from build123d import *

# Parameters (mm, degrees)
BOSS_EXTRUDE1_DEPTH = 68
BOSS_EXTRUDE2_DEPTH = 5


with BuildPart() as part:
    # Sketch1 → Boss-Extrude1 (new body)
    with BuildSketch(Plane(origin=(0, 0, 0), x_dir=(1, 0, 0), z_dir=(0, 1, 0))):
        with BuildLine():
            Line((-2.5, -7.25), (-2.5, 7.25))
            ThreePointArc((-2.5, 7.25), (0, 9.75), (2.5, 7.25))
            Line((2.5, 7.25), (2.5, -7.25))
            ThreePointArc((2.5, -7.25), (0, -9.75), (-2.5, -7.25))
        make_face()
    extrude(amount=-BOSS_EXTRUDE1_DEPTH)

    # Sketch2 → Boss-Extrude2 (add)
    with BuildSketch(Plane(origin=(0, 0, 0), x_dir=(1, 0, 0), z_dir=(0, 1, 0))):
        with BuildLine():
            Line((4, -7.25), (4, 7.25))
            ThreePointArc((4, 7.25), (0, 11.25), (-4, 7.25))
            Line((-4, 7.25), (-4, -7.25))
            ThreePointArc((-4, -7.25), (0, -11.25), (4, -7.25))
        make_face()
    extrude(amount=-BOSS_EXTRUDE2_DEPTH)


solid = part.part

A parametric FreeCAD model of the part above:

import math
import FreeCAD as App
import Part
import Sketcher
from FreeCAD import Vector
Q = App.Units.Quantity

doc = App.newDocument("Part")
body = doc.addObject("PartDesign::Body", "Body")

sketch1 = body.newObject("Sketcher::SketchObject", "Sketch")
sketch1.AttachmentSupport = (doc.getObject("XZ_Plane"), [""])
sketch1.MapMode = "FlatFace"
sketch1.addGeometry([
    Part.LineSegment(Vector(-2.5, -7.2, 0), Vector(-2.5, 7.2, 0)),
    Part.ArcOfCircle(Part.Circle(Vector(0, 7.2, 0), Vector(0, 0, 1), 2.5), math.radians(0), math.radians(180)),
    Part.LineSegment(Vector(2.5, 7.2, 0), Vector(2.5, -7.2, 0)),
    Part.ArcOfCircle(Part.Circle(Vector(0, -7.2, 0), Vector(0, 0, 1), 2.5), math.radians(180), math.radians(360)),
], False)
sketch1.addConstraint([
    Sketcher.Constraint("Tangent", 0, 2, 1, 2),
    Sketcher.Constraint("Tangent", 1, 1, 2, 1),
    Sketcher.Constraint("Tangent", 2, 2, 3, 2),
    Sketcher.Constraint("Tangent", 3, 1, 0, 1),
    Sketcher.Constraint("Vertical", 0),
    Sketcher.Constraint("Vertical", 2),
    Sketcher.Constraint("Symmetric", 1, 3, 3, 3, -1, 1),
    Sketcher.Constraint("Radius", 1, Q("2.5 mm")),
    Sketcher.Constraint("DistanceY", 0, 1, 0, 2, Q("14.5 mm")),
])
pad1 = body.newObject("PartDesign::Pad", "Pad")
pad1.Profile = sketch1
pad1.Length = 68

sketch2 = body.newObject("Sketcher::SketchObject", "Sketch001")
sketch2.AttachmentSupport = (doc.getObject("XZ_Plane"), [""])
sketch2.MapMode = "FlatFace"
sketch2.addGeometry([
    Part.LineSegment(Vector(4, 7.2, 0), Vector(4, -7.2, 0)),
    Part.ArcOfCircle(Part.Circle(Vector(0, -7.2, 0), Vector(0, 0, 1), 4), math.radians(180), math.radians(360)),
    Part.LineSegment(Vector(-4, -7.2, 0), Vector(-4, 7.2, 0)),
    Part.ArcOfCircle(Part.Circle(Vector(0, 7.2, 0), Vector(0, 0, 1), 4), math.radians(0), math.radians(180)),
], False)
sketch2.addConstraint([
    Sketcher.Constraint("Tangent", 0, 2, 1, 2),
    Sketcher.Constraint("Tangent", 1, 1, 2, 1),
    Sketcher.Constraint("Tangent", 2, 2, 3, 2),
    Sketcher.Constraint("Tangent", 3, 1, 0, 1),
    Sketcher.Constraint("Vertical", 0),
    Sketcher.Constraint("Vertical", 2),
    Sketcher.Constraint("Symmetric", 1, 3, 3, 3, -1, 1),
    Sketcher.Constraint("Radius", 1, Q("4 mm")),
    Sketcher.Constraint("DistanceY", 0, 2, 0, 1, Q("14.5 mm")),
])
pad2 = body.newObject("PartDesign::Pad", "Pad001")
pad2.Profile = sketch2
pad2.Length = 5

doc.recompute()
